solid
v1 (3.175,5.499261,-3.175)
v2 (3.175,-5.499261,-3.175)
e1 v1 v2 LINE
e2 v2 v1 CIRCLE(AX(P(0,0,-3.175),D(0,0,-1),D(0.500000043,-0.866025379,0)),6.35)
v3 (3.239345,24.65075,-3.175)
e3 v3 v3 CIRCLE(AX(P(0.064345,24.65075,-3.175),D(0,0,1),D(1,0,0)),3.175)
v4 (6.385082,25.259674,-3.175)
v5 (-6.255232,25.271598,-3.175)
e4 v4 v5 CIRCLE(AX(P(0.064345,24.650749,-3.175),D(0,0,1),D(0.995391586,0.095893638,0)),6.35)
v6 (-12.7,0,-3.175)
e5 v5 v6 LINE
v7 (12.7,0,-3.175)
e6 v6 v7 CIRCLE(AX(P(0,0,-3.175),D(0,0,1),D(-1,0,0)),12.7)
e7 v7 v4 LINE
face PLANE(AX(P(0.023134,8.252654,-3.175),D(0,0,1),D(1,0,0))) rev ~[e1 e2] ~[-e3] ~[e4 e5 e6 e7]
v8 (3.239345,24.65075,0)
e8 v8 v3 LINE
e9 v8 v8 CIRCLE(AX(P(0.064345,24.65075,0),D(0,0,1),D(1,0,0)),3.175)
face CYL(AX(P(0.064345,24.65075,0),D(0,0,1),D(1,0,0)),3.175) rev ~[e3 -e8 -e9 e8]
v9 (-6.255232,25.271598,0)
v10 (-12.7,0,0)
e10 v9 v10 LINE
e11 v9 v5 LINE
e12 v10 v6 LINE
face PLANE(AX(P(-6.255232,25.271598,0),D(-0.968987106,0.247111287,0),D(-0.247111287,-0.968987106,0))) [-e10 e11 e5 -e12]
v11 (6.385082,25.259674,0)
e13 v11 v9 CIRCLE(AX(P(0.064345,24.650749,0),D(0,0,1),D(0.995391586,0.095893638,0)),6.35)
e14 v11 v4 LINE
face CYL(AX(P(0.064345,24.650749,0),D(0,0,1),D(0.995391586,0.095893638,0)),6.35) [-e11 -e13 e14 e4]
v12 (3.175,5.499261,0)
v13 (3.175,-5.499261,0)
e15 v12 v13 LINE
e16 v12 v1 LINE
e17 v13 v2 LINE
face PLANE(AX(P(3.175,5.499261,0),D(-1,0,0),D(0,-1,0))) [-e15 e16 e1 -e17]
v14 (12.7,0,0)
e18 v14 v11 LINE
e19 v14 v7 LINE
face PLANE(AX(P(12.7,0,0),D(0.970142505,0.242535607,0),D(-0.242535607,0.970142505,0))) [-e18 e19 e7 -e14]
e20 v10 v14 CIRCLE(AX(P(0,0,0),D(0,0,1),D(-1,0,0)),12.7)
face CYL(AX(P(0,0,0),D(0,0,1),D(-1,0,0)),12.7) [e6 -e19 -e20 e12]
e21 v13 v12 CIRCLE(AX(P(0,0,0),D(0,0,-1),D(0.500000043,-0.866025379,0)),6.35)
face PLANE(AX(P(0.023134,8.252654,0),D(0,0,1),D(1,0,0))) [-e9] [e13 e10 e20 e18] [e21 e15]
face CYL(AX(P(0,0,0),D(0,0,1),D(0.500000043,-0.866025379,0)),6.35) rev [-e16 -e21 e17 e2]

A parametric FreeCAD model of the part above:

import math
import FreeCAD as App
import Part
import Sketcher
from FreeCAD import Vector
Q = App.Units.Quantity

doc = App.newDocument("Part")
body = doc.addObject("PartDesign::Body", "Body")

# Sketch on XY plane
sketch1 = doc.addObject("Sketcher::SketchObject", "Sketch")
body.addObject(sketch1)
sketch1.AttachmentSupport = (doc.XY_Plane, [""])
sketch1.MapMode = "FlatFace"
sketch1.addGeometry([
    Part.LineSegment(Vector(-6.255232, 25.271598, 0), Vector(-12.7, 0, 0)),  # 0
    Part.ArcOfCircle(Part.Circle(Vector(0, 0, 0), Vector(0, 0, 1), 12.7), math.radians(180), math.radians(360)),  # 1
    Part.LineSegment(Vector(12.7, 0, 0), Vector(6.385082, 25.259674, 0)),  # 2
    Part.ArcOfCircle(Part.Circle(Vector(0.064345, 24.650749, 0), Vector(0, 0, 1), 6.35), math.radians(5.502756), math.radians(174.389146)),  # 3
    Part.LineSegment(Vector(3.175, 5.499261, 0), Vector(3.175, -5.499261, 0)),  # 4
    Part.ArcOfCircle(Part.Circle(Vector(0, 0, 0), Vector(0, 0, 1), 6.35), math.radians(59.999997), math.radians(300.000003)),  # 5
    Part.Circle(Vector(0.064345, 24.65075, 0), Vector(0, 0, 1), 3.175),  # 6
], False)
sketch1.addConstraint([
    Sketcher.Constraint("Coincident", 0, 2, 1, 1),
    Sketcher.Constraint("Coincident", 1, 2, 2, 1),
    Sketcher.Constraint("Coincident", 2, 2, 3, 1),
    Sketcher.Constraint("Coincident", 3, 2, 0, 1),
    Sketcher.Constraint("Coincident", 4, 1, 5, 1),
    Sketcher.Constraint("Coincident", 5, 2, 4, 2),
    Sketcher.Constraint("Vertical", 4),
    Sketcher.Constraint("Coincident", 1, 3, -1, 1),
    Sketcher.Constraint("Coincident", 5, 3, -1, 1),
    Sketcher.Constraint("Coincident", 6, 3, 3, 3),
    Sketcher.Constraint("Equal", 3, 5),
    Sketcher.Constraint("PointOnObject", 0, 2, -1),
    Sketcher.Constraint("PointOnObject", 1, 2, -1),
    Sketcher.Constraint("Radius", 1, Q("0.5 in")),
    Sketcher.Constraint("Diameter", 6, Q("0.25 in")),
    Sketcher.Constraint("Radius", 3, Q("0.25 in")),
    Sketcher.Constraint("DistanceX", -1, 1, 4, 1, Q("0.125 in")),
    Sketcher.Constraint("DistanceY", -1, 1, 3, 2, Q("25.271598 mm")),
    Sketcher.Constraint("DistanceY", -1, 1, 3, 3, Q("24.650749 mm")),
    Sketcher.Constraint("DistanceX", -1, 1, 2, 2, Q("6.385082 mm")),
    Sketcher.Constraint("DistanceX", 3, 2, 5, 3, Q("6.255232 mm")),
])
pad1 = doc.addObject("PartDesign::Pad", "Pad")
body.addObject(pad1)
pad1.Profile = sketch1
pad1.Length = Q("0.125 in")
pad1.Reversed = True

doc.recompute()
